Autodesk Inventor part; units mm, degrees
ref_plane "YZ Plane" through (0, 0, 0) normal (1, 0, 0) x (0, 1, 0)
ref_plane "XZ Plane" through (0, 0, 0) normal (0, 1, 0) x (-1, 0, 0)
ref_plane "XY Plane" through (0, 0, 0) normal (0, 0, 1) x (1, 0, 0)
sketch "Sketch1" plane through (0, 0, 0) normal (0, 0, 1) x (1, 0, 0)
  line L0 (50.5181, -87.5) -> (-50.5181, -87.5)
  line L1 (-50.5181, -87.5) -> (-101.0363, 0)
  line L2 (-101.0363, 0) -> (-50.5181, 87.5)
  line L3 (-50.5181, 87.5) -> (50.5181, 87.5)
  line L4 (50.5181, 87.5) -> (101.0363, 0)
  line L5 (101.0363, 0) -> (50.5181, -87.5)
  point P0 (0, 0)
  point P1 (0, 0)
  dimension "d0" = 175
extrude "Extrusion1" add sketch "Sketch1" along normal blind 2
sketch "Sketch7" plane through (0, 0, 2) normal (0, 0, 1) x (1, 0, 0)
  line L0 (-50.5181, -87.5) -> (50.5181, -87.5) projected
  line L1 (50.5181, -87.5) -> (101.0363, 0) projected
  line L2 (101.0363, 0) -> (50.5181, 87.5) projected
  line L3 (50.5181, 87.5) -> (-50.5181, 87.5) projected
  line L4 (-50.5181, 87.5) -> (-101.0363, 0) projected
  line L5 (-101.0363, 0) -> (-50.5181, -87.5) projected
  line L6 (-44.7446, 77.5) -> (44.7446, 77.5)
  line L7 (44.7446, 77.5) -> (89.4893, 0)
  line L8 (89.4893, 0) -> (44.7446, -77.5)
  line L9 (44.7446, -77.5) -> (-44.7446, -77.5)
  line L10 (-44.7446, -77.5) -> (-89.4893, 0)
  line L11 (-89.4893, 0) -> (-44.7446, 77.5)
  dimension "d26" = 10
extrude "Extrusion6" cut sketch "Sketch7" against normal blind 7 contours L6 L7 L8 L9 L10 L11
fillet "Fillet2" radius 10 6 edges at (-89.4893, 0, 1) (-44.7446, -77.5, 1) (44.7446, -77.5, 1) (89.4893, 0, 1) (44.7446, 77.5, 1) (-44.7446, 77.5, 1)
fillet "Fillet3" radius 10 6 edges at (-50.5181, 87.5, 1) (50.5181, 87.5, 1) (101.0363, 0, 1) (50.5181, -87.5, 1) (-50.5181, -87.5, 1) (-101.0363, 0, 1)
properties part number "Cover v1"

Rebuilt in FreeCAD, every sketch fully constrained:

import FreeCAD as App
import Part
import Sketcher
from FreeCAD import Vector
Q = App.Units.Quantity


def edges_at(feature, points):
    """Names of the edges that pass closest to the given points."""
    edges = feature.Shape.Edges
    near = lambda p: min(range(len(edges)), key=lambda i: edges[i].distToShape(Part.Vertex(*p))[0])
    return sorted({f"Edge{near(p) + 1}" for p in points})

doc = App.newDocument("Part")
body = doc.addObject("PartDesign::Body", "Body")

# Sketch on XY plane
sketch1 = body.newObject("Sketcher::SketchObject", "Sketch")
sketch1.AttachmentSupport = (doc.getObject("XY_Plane"), [""])
sketch1.MapMode = "FlatFace"
sketch1.addGeometry([
    Part.LineSegment(Vector(-51, -88, 0), Vector(51, -88, 0)),  # 0
    Part.LineSegment(Vector(51, -88, 0), Vector(101, 0, 0)),  # 1
    Part.LineSegment(Vector(101, 0, 0), Vector(51, 88, 0)),  # 2
    Part.LineSegment(Vector(51, 88, 0), Vector(-51, 88, 0)),  # 3
    Part.LineSegment(Vector(-51, 88, 0), Vector(-101, 0, 0)),  # 4
    Part.LineSegment(Vector(-101, 0, 0), Vector(-51, -88, 0)),  # 5
], False)
sketch1.addConstraint([
    Sketcher.Constraint("Coincident", 0, 2, 1, 1),
    Sketcher.Constraint("Coincident", 1, 2, 2, 1),
    Sketcher.Constraint("Coincident", 2, 2, 3, 1),
    Sketcher.Constraint("Coincident", 3, 2, 4, 1),
    Sketcher.Constraint("Coincident", 4, 2, 5, 1),
    Sketcher.Constraint("Coincident", 5, 2, 0, 1),
    Sketcher.Constraint("Horizontal", 0),
    Sketcher.Constraint("Horizontal", 3),
    Sketcher.Constraint("Symmetric", 0, 2, 3, 2, -1, 1),
    Sketcher.Constraint("Symmetric", 1, 2, 4, 2, -1, 1),
    Sketcher.Constraint("PointOnObject", 1, 2, -1),
    Sketcher.Constraint("Parallel", 2, 5),
    Sketcher.Constraint("Vertical", 0, 2, 2, 2),
    Sketcher.Constraint("DistanceY", 0, 2, 2, 2, 175.0),
    Sketcher.Constraint("Angle", 1, Q("60 deg")),
    Sketcher.Constraint("DistanceX", 0, 1, 0, 2, 101.0362),
])
pad1 = body.newObject("PartDesign::Pad", "Pad")
pad1.Profile = sketch1
pad1.Length = 2

# Sketch on XY plane
sketch2 = body.newObject("Sketcher::SketchObject", "Sketch001")
sketch2.AttachmentSupport = (doc.getObject("XY_Plane"), [""])
sketch2.MapMode = "FlatFace"
sketch2.AttachmentOffset = App.Placement(Vector(0, 0, 2), App.Rotation())
sketch2.addGeometry([
    Part.LineSegment(Vector(45, 78, 0), Vector(-45, 78, 0)),  # 0
    Part.LineSegment(Vector(-45, 78, 0), Vector(-89, 0, 0)),  # 1
    Part.LineSegment(Vector(-89, 0, 0), Vector(-45, -78, 0)),  # 2
    Part.LineSegment(Vector(-45, -78, 0), Vector(45, -78, 0)),  # 3
    Part.LineSegment(Vector(45, -78, 0), Vector(89, 0, 0)),  # 4
    Part.LineSegment(Vector(89, 0, 0), Vector(45, 78, 0)),  # 5
], False)
sketch2.addConstraint([
    Sketcher.Constraint("Coincident", 0, 2, 1, 1),
    Sketcher.Constraint("Coincident", 1, 2, 2, 1),
    Sketcher.Constraint("Coincident", 2, 2, 3, 1),
    Sketcher.Constraint("Coincident", 3, 2, 4, 1),
    Sketcher.Constraint("Coincident", 4, 2, 5, 1),
    Sketcher.Constraint("Coincident", 5, 2, 0, 1),
    Sketcher.Constraint("Horizontal", 0),
    Sketcher.Constraint("Horizontal", 3),
    Sketcher.Constraint("Symmetric", 0, 2, 3, 2, -1, 1),
    Sketcher.Constraint("Symmetric", 1, 2, 4, 2, -1, 1),
    Sketcher.Constraint("PointOnObject", 1, 2, -1),
    Sketcher.Constraint("Parallel", 2, 5),
    Sketcher.Constraint("Vertical", 0, 2, 2, 2),
    Sketcher.Constraint("Angle", 1, Q("-120 deg")),
    Sketcher.Constraint("DistanceY", 2, 2, 0, 2, 155.0),
    Sketcher.Constraint("DistanceX", 0, 2, 0, 1, 89.4892),
])
pocket1 = body.newObject("PartDesign::Pocket", "Pocket")
pocket1.Profile = sketch2
pocket1.Length = 7
doc.recompute()

fillet = body.newObject("PartDesign::Fillet", "Fillet")
fillet.Base = (pocket1, edges_at(pocket1, [
    (-89.489, 0, 1),
    (-44.745, -77.5, 1),
    (44.745, -77.5, 1),
    (89.489, 0, 1),
    (44.745, 77.5, 1),
    (-44.745, 77.5, 1),
]))
fillet.Radius = 10
doc.recompute()

fillet2 = body.newObject("PartDesign::Fillet", "Fillet001")
fillet2.Base = (fillet, edges_at(fillet, [
    (-50.518, 87.5, 1),
    (50.518, 87.5, 1),
    (101.036, 0, 1),
    (50.518, -87.5, 1),
    (-50.518, -87.5, 1),
    (-101.036, 0, 1),
]))
fillet2.Radius = 10

doc.recompute()
